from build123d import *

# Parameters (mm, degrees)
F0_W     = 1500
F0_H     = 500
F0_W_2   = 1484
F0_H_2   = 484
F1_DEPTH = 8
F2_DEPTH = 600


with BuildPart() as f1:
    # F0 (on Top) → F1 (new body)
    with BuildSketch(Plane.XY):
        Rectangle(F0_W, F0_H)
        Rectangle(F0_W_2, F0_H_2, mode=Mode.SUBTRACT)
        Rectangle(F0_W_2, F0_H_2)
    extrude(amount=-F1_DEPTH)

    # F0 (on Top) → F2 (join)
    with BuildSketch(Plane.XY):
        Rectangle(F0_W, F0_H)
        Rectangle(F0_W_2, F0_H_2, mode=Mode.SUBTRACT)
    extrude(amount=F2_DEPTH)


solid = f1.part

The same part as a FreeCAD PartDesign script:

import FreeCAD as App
import Part
import Sketcher


def add_polygon(sketch, points):
    """Adds a closed chain of lines whose ends are joined by coincident constraints."""
    first, n = sketch.GeometryCount, len(points)
    for a, b in zip(points, points[1:] + points[:1]):
        sketch.addGeometry(Part.LineSegment(App.Vector(*a, 0), App.Vector(*b, 0)), False)
    for i in range(n):
        sketch.addConstraint(Sketcher.Constraint("Coincident", first + i, 2, first + (i + 1) % n, 1))

doc = App.newDocument("Part")
params = doc.addObject("Spreadsheet::Sheet", "Params")
for row, (alias, value) in enumerate([
    ("sketch1_width", "1500 mm"),
    ("sketch1_height", "500 mm"),
    ("pad1_length", "8 mm"),
    ("sketch2_width", "1500 mm"),
    ("sketch2_width2", "1484 mm"),
    ("sketch2_height", "500 mm"),
    ("sketch2_height2", "484 mm"),
    ("pad2_length", "600 mm"),
], start=1):
    params.set(f"A{row}", alias)
    params.set(f"B{row}", "=" + value)
    params.setAlias(f"B{row}", alias)

body = doc.addObject("PartDesign::Body", "Body")

# Sketch on XY plane
sketch1 = body.newObject("Sketcher::SketchObject", "Sketch")
sketch1.AttachmentSupport = (doc.getObject("XY_Plane"), [""])
sketch1.MapMode = "FlatFace"
add_polygon(sketch1, [(-750, 250), (-750, -250), (750, -250), (750, 250)])  # lines 0-3
sketch1.addConstraint([
    Sketcher.Constraint("Vertical", 0),
    Sketcher.Constraint("Horizontal", 1),
    Sketcher.Constraint("Vertical", 2),
    Sketcher.Constraint("Horizontal", 3),
    Sketcher.Constraint("Symmetric", 0, 2, 2, 2, -1, 1),
    Sketcher.Constraint("DistanceX", 1, 1, 1, 2, 1500.0),
    Sketcher.Constraint("DistanceY", 0, 2, 0, 1, 500.0),
])
sketch1.setExpression("Constraints[9]", "Params.sketch1_width")
sketch1.setExpression("Constraints[10]", "Params.sketch1_height")
pad1 = body.newObject("PartDesign::Pad", "Pad")
pad1.Profile = sketch1
pad1.setExpression("Length", "Params.pad1_length")
pad1.Reversed = True

# Sketch on XY plane
sketch2 = body.newObject("Sketcher::SketchObject", "Sketch001")
sketch2.AttachmentSupport = (doc.getObject("XY_Plane"), [""])
sketch2.MapMode = "FlatFace"
add_polygon(sketch2, [(-750, 250), (-750, -250), (750, -250), (750, 250)])  # lines 0-3
add_polygon(sketch2, [(742, -242), (-742, -242), (-742, 242), (742, 242)])  # lines 4-7
sketch2.addConstraint([
    Sketcher.Constraint("Vertical", 0),
    Sketcher.Constraint("Horizontal", 1),
    Sketcher.Constraint("Vertical", 2),
    Sketcher.Constraint("Horizontal", 3),
    Sketcher.Constraint("Horizontal", 4),
    Sketcher.Constraint("Vertical", 5),
    Sketcher.Constraint("Horizontal", 6),
    Sketcher.Constraint("Vertical", 7),
    Sketcher.Constraint("Symmetric", 0, 2, 2, 2, -1, 1),
    Sketcher.Constraint("Symmetric", 4, 2, 6, 2, -1, 1),
    Sketcher.Constraint("DistanceX", 1, 1, 1, 2, 1500.0),
    Sketcher.Constraint("DistanceX", 4, 2, 4, 1, 1484.0),
    Sketcher.Constraint("DistanceY", 0, 2, 0, 1, 500.0),
    Sketcher.Constraint("DistanceY", 5, 1, 5, 2, 484.0),
])
sketch2.setExpression("Constraints[18]", "Params.sketch2_width")
sketch2.setExpression("Constraints[19]", "Params.sketch2_width2")
sketch2.setExpression("Constraints[20]", "Params.sketch2_height")
sketch2.setExpression("Constraints[21]", "Params.sketch2_height2")
pad2 = body.newObject("PartDesign::Pad", "Pad001")
pad2.Profile = sketch2
pad2.setExpression("Length", "Params.pad2_length")

doc.recompute()
